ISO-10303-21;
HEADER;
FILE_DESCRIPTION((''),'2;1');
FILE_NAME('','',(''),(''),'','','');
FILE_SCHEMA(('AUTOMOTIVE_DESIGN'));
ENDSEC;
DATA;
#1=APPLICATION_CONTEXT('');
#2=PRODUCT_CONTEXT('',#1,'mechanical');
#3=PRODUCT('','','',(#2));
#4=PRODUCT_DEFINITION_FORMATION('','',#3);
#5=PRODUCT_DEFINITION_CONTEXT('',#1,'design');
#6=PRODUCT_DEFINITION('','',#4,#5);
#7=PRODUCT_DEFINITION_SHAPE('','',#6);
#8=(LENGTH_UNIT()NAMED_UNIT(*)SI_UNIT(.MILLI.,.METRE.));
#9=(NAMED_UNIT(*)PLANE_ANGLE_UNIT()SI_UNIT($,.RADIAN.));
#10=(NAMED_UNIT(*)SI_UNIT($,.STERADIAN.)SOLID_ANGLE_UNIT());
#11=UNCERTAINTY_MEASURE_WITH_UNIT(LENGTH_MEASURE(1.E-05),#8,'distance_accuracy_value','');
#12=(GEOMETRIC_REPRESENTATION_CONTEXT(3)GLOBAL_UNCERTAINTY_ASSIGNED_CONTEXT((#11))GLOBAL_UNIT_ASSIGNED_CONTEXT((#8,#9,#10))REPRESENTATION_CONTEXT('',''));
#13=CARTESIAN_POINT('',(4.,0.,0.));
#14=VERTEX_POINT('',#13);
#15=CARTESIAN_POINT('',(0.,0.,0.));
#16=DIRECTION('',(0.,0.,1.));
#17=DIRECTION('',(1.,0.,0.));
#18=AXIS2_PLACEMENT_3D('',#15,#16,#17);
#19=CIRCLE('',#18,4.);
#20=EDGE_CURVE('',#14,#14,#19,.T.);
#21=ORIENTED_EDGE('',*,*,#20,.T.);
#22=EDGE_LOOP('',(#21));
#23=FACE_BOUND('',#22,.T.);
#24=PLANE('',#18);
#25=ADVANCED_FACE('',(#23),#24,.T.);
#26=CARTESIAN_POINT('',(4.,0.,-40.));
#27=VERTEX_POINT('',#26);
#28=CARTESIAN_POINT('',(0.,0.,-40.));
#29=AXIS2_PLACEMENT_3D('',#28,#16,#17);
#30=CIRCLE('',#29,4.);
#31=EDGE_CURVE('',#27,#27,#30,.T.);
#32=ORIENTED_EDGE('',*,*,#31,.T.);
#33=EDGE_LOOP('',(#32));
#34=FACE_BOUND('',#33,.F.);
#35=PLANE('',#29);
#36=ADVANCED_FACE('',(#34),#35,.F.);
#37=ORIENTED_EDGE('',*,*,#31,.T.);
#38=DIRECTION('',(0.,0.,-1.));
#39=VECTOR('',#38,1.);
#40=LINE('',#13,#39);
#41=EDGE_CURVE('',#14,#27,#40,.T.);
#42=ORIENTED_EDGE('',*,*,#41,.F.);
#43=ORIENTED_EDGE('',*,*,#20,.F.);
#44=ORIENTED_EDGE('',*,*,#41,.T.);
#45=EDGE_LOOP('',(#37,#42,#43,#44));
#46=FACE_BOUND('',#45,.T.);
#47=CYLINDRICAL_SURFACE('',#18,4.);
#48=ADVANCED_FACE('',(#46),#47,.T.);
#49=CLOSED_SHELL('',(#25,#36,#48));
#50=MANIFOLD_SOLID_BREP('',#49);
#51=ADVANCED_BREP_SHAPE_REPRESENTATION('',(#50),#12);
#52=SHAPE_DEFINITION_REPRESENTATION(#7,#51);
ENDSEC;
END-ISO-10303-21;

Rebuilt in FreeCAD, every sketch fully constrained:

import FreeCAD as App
import Part
import Sketcher
from FreeCAD import Vector
Q = App.Units.Quantity

doc = App.newDocument("Part")
body = doc.addObject("PartDesign::Body", "Body")

sketch1 = body.newObject("Sketcher::SketchObject", "Sketch")
sketch1.AttachmentSupport = (doc.getObject("XY_Plane"), [""])
sketch1.MapMode = "FlatFace"
sketch1.addGeometry(Part.Circle(Vector(0, 0, 0), Vector(0, 0, 1), 4), False)
sketch1.addConstraint(Sketcher.Constraint("Coincident", 0, 3, -1, 1))
sketch1.addConstraint(Sketcher.Constraint("Diameter", 0, Q("8 mm")))
pad1 = body.newObject("PartDesign::Pad", "Pad")
pad1.Profile = sketch1
pad1.Length = 40
pad1.Reversed = True

doc.recompute()
